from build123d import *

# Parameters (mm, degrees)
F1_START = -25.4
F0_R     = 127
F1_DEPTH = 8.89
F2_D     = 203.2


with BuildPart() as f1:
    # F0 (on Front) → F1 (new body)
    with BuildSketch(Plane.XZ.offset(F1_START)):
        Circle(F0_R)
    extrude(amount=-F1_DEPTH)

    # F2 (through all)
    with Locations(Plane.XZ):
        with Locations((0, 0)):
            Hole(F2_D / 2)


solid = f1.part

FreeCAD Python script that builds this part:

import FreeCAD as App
import Part
import Sketcher
Q = App.Units.Quantity

doc = App.newDocument("Part")
body = doc.addObject("PartDesign::Body", "Body")

# Sketch on XZ plane
sketch1 = body.newObject("Sketcher::SketchObject", "Sketch")
sketch1.AttachmentSupport = (doc.getObject("XZ_Plane"), [""])
sketch1.MapMode = "FlatFace"
sketch1.AttachmentOffset = App.Placement(App.Vector(0, 0, -1 * 25.4), App.Rotation())
sketch1.addGeometry(Part.Circle(App.Vector(0, 0, 0), App.Vector(0, 0, 1), 127), False)
sketch1.addConstraint([
    Sketcher.Constraint("Coincident", 0, 3, -1, 1),
    Sketcher.Constraint("Diameter", 0, Q("10 in")),
])
pad1 = body.newObject("PartDesign::Pad", "Pad")
pad1.Profile = sketch1
pad1.Length = Q("0.35 in")
pad1.Reversed = True

# Sketch on XZ plane
sketch2 = body.newObject("Sketcher::SketchObject", "Sketch001")
sketch2.AttachmentSupport = (doc.getObject("XZ_Plane"), [""])
sketch2.MapMode = "FlatFace"
sketch2.addGeometry(Part.Circle(App.Vector(0, 0, 0), App.Vector(0, 0, 1), 101.6), False)
sketch2.addConstraint([
    Sketcher.Constraint("Coincident", 0, 3, -1, 1),
    Sketcher.Constraint("Diameter", 0, Q("8 in")),
])
doc.recompute()
hole = body.newObject("PartDesign::Hole", "Hole")
hole.Profile = sketch2
hole.ThreadType = "None"
hole.Diameter = Q("8 in")
hole.DepthType = "ThroughAll"

doc.recompute()
